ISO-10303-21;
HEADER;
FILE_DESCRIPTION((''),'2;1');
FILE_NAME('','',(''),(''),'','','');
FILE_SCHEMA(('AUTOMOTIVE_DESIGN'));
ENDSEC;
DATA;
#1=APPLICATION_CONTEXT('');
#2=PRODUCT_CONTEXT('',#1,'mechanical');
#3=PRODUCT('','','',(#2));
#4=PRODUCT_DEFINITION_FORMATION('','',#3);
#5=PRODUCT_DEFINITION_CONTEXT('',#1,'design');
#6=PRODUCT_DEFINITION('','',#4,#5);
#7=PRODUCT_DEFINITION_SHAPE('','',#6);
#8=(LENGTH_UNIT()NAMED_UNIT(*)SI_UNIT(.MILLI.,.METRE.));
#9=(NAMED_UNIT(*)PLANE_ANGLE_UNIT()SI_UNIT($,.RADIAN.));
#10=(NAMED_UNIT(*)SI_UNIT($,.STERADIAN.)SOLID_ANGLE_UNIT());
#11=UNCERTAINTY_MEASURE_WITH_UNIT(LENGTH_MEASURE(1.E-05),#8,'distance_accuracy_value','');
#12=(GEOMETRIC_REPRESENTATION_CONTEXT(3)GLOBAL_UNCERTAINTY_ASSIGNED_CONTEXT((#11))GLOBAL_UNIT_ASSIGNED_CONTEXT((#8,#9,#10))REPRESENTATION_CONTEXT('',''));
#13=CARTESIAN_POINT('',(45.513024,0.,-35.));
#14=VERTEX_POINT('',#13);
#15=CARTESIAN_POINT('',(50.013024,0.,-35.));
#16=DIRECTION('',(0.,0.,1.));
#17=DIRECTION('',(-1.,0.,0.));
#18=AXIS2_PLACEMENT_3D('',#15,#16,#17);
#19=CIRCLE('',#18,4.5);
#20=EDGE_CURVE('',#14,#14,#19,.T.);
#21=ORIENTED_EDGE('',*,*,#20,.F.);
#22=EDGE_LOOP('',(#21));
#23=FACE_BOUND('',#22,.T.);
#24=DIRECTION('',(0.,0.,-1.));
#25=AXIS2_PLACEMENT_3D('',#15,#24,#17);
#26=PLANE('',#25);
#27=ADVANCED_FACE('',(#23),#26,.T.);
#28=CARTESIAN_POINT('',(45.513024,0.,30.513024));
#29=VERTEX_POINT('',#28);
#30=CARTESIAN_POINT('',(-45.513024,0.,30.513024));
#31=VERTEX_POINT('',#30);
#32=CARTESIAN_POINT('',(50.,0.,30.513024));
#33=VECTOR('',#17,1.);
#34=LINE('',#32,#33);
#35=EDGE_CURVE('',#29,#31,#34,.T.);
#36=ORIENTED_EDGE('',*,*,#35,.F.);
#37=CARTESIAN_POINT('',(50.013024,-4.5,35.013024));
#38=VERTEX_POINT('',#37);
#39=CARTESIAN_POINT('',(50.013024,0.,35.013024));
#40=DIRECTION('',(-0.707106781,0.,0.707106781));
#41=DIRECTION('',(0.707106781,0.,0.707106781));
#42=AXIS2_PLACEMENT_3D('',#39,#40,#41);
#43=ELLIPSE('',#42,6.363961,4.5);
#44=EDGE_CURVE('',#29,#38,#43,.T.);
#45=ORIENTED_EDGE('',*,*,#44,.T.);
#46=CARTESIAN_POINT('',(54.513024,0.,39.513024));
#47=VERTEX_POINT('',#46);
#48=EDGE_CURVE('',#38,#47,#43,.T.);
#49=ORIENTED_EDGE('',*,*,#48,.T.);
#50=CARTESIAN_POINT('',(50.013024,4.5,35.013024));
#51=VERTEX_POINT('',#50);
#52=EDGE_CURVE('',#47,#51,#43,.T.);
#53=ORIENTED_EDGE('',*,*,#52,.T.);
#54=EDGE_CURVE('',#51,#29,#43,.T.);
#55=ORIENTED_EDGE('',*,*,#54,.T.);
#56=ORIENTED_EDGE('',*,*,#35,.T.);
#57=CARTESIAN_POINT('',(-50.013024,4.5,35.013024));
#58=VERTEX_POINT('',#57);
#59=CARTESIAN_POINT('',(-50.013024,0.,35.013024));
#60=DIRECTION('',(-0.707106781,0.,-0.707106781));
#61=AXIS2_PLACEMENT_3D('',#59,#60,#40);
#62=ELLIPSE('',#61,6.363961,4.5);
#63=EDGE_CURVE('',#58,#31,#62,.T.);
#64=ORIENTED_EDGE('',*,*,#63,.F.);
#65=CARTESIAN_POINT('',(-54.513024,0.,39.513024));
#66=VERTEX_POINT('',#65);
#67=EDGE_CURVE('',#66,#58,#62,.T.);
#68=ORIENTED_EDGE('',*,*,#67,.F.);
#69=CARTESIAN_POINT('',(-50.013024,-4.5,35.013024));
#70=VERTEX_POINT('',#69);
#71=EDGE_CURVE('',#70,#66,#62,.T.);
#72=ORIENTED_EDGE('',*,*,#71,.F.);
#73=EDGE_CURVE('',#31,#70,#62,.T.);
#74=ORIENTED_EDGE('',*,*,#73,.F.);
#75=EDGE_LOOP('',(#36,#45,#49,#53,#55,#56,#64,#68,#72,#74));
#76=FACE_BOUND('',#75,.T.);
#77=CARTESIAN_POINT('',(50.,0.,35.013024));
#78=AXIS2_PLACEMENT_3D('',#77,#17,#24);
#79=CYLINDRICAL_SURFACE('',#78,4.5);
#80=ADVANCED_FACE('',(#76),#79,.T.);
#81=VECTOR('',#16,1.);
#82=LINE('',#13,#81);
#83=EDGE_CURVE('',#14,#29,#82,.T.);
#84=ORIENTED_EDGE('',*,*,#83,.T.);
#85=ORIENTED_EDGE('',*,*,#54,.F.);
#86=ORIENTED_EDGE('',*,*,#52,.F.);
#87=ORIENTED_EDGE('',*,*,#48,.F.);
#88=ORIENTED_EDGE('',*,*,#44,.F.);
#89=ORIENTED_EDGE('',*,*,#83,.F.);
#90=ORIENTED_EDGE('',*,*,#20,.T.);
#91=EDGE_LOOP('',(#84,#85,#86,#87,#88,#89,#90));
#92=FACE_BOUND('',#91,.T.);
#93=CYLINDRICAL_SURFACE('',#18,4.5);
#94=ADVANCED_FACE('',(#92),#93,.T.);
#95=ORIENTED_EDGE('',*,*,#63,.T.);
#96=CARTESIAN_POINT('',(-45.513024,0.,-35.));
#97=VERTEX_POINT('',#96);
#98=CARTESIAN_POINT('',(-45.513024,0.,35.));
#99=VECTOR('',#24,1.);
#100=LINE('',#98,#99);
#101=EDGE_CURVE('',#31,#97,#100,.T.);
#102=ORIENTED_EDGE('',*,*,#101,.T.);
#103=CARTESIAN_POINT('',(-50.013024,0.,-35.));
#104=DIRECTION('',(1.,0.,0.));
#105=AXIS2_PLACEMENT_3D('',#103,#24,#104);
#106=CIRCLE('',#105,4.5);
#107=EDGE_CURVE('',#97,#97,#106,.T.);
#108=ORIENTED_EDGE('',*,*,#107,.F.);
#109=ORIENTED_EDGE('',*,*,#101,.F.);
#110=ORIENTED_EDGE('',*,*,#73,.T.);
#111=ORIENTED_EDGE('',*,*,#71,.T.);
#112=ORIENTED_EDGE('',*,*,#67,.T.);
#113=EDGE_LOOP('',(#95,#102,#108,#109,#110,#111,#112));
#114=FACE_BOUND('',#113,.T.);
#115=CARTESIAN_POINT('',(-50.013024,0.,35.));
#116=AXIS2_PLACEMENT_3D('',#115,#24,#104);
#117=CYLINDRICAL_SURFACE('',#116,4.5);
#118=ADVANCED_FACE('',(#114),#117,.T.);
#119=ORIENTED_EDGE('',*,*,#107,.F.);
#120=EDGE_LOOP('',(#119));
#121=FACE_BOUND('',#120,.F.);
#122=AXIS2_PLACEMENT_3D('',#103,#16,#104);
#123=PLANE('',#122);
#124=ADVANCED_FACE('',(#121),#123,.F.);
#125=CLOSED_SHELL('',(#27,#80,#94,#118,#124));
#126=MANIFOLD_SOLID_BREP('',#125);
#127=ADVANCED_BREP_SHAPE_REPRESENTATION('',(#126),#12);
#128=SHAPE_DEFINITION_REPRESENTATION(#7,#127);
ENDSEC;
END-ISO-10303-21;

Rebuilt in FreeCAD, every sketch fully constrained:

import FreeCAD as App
import Part
import Sketcher

V = App.Vector

doc = App.newDocument("Part")
body = doc.addObject("PartDesign::Body", "Body")

sketch1 = doc.addObject("Sketcher::SketchObject", "Sketch")
body.addObject(sketch1)
sketch1.AttachmentSupport = (doc.XY_Plane, [""])
sketch1.MapMode = "FlatFace"
sketch1.AttachmentOffset = App.Placement(V(0, 0, -35), App.Rotation())
sketch1.addGeometry(Part.Circle(V(-50, 0, 0), V(0, 0, 1), 4.5), False)
sketch1.addConstraint([
    Sketcher.Constraint("PointOnObject", 0, 3, -1),
    Sketcher.Constraint("Diameter", 0, 9.0),
    Sketcher.Constraint("DistanceX", 0, 3, -1, 1, 50.013024),
])

sketch2 = doc.addObject("Sketcher::SketchObject", "Sketch001")
body.addObject(sketch2)
sketch2.AttachmentSupport = (doc.XZ_Plane, [""])
sketch2.MapMode = "FlatFace"
sketch2.addGeometry([
    Part.LineSegment(V(50, -35, 0), V(50, 35, 0)),
    Part.LineSegment(V(50, 35, 0), V(-50, 35, 0)),
    Part.LineSegment(V(-50, 35, 0), V(-50, -35, 0)),
], False)
sketch2.addConstraint([
    Sketcher.Constraint("Coincident", 0, 2, 1, 1),
    Sketcher.Constraint("Coincident", 1, 2, 2, 1),
    Sketcher.Constraint("Vertical", 0),
    Sketcher.Constraint("Horizontal", 1),
    Sketcher.Constraint("Vertical", 2),
    Sketcher.Constraint("Symmetric", 0, 1, 1, 2, -1, 1),
    Sketcher.Constraint("Horizontal", 0, 1, 2, 2),
    Sketcher.Constraint("DistanceX", 1, 2, 1, 1, 100.0),
    Sketcher.Constraint("DistanceY", 0, 1, 0, 2, 70.0),
])
doc.recompute()

additivepipe = doc.addObject("PartDesign::AdditivePipe", "AdditivePipe")
body.addObject(additivepipe)
additivepipe.Profile = sketch1
additivepipe.Spine = (sketch2, ["Edge1", "Edge2", "Edge3"])
additivepipe.Transition = "Right corner"

doc.recompute()
